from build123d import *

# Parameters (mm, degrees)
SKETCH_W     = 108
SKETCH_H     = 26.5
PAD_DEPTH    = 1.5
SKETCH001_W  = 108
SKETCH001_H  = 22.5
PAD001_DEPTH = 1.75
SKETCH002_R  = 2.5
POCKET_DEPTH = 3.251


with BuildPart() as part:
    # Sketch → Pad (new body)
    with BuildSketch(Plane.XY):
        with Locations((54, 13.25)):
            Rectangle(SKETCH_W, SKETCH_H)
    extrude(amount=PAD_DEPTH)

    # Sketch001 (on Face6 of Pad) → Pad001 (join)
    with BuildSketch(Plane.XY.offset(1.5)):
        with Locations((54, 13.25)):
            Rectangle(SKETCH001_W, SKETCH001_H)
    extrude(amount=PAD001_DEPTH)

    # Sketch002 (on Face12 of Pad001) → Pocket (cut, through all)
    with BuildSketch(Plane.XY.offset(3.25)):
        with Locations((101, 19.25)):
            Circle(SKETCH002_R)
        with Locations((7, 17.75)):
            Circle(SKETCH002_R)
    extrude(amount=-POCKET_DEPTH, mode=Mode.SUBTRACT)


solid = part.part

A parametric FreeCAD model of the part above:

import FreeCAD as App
import Part
import Sketcher

V = App.Vector
Q = App.Units.Quantity


def add_polygon(sketch, points):
    """Adds a closed chain of lines whose ends are joined by coincident constraints."""
    first, n = sketch.GeometryCount, len(points)
    for a, b in zip(points, points[1:] + points[:1]):
        sketch.addGeometry(Part.LineSegment(App.Vector(*a, 0), App.Vector(*b, 0)), False)
    for i in range(n):
        sketch.addConstraint(Sketcher.Constraint("Coincident", first + i, 2, first + (i + 1) % n, 1))

doc = App.newDocument("Part")
body = doc.addObject("PartDesign::Body", "Body")

sketch1 = body.newObject("Sketcher::SketchObject", "Sketch")
sketch1.AttachmentSupport = (doc.getObject("XY_Plane"), [""])
sketch1.MapMode = "FlatFace"
add_polygon(sketch1, [(0, 26), (0, 0), (108, 0), (108, 26)])
sketch1.addConstraint(Sketcher.Constraint("Vertical", 0))
sketch1.addConstraint(Sketcher.Constraint("Horizontal", 1))
sketch1.addConstraint(Sketcher.Constraint("Vertical", 2))
sketch1.addConstraint(Sketcher.Constraint("Horizontal", 3))
sketch1.addConstraint(Sketcher.Constraint("Coincident", 0, 2, -1, 1))
sketch1.addConstraint(Sketcher.Constraint("DistanceX", 1, 1, 1, 2, Q("108 mm")))
sketch1.addConstraint(Sketcher.Constraint("DistanceY", 0, 2, 0, 1, Q("26.5 mm")))
pad1 = body.newObject("PartDesign::Pad", "Pad")
pad1.Profile = sketch1
pad1.Length = 1.5

sketch2 = body.newObject("Sketcher::SketchObject", "Sketch001")
sketch2.AttachmentSupport = (doc.getObject("XY_Plane"), [""])
sketch2.MapMode = "FlatFace"
sketch2.AttachmentOffset = App.Placement(V(0, 0, 1.5), App.Rotation())
add_polygon(sketch2, [(0, 24), (0, 2), (108, 2), (108, 24)])
sketch2.addConstraint(Sketcher.Constraint("Vertical", 0))
sketch2.addConstraint(Sketcher.Constraint("Horizontal", 1))
sketch2.addConstraint(Sketcher.Constraint("Vertical", 2))
sketch2.addConstraint(Sketcher.Constraint("Horizontal", 3))
sketch2.addConstraint(Sketcher.Constraint("PointOnObject", 0, 2, -2))
sketch2.addConstraint(Sketcher.Constraint("DistanceX", 1, 1, 1, 2, Q("108 mm")))
sketch2.addConstraint(Sketcher.Constraint("DistanceY", 0, 2, 0, 1, Q("22.5 mm")))
sketch2.addConstraint(Sketcher.Constraint("DistanceY", -1, 1, 0, 2, Q("2 mm")))
pad2 = body.newObject("PartDesign::Pad", "Pad001")
pad2.Profile = sketch2
pad2.Length = 1.75

sketch3 = body.newObject("Sketcher::SketchObject", "Sketch002")
sketch3.AttachmentSupport = (doc.getObject("XY_Plane"), [""])
sketch3.MapMode = "FlatFace"
sketch3.AttachmentOffset = App.Placement(V(0, 0, 3.25), App.Rotation())
sketch3.addGeometry(Part.Circle(V(101, 19.2, 0), V(0, 0, 1), 2.5), False)
sketch3.addGeometry(Part.Circle(V(7, 17.8, 0), V(0, 0, 1), 2.5), False)
sketch3.addConstraint(Sketcher.Constraint("Equal", 0, 1))
sketch3.addConstraint(Sketcher.Constraint("Diameter", 0, Q("5 mm")))
sketch3.addConstraint(Sketcher.Constraint("DistanceX", -1, 1, 0, 3, Q("101 mm")))
sketch3.addConstraint(Sketcher.Constraint("DistanceX", -1, 1, 1, 3, Q("7 mm")))
sketch3.addConstraint(Sketcher.Constraint("DistanceY", 1, 3, 0, 3, Q("1.5 mm")))
sketch3.addConstraint(Sketcher.Constraint("DistanceY", -1, 1, 0, 3, Q("19.25 mm")))
pocket1 = body.newObject("PartDesign::Pocket", "Pocket")
pocket1.Profile = sketch3
pocket1.Type = "ThroughAll"

doc.recompute()
